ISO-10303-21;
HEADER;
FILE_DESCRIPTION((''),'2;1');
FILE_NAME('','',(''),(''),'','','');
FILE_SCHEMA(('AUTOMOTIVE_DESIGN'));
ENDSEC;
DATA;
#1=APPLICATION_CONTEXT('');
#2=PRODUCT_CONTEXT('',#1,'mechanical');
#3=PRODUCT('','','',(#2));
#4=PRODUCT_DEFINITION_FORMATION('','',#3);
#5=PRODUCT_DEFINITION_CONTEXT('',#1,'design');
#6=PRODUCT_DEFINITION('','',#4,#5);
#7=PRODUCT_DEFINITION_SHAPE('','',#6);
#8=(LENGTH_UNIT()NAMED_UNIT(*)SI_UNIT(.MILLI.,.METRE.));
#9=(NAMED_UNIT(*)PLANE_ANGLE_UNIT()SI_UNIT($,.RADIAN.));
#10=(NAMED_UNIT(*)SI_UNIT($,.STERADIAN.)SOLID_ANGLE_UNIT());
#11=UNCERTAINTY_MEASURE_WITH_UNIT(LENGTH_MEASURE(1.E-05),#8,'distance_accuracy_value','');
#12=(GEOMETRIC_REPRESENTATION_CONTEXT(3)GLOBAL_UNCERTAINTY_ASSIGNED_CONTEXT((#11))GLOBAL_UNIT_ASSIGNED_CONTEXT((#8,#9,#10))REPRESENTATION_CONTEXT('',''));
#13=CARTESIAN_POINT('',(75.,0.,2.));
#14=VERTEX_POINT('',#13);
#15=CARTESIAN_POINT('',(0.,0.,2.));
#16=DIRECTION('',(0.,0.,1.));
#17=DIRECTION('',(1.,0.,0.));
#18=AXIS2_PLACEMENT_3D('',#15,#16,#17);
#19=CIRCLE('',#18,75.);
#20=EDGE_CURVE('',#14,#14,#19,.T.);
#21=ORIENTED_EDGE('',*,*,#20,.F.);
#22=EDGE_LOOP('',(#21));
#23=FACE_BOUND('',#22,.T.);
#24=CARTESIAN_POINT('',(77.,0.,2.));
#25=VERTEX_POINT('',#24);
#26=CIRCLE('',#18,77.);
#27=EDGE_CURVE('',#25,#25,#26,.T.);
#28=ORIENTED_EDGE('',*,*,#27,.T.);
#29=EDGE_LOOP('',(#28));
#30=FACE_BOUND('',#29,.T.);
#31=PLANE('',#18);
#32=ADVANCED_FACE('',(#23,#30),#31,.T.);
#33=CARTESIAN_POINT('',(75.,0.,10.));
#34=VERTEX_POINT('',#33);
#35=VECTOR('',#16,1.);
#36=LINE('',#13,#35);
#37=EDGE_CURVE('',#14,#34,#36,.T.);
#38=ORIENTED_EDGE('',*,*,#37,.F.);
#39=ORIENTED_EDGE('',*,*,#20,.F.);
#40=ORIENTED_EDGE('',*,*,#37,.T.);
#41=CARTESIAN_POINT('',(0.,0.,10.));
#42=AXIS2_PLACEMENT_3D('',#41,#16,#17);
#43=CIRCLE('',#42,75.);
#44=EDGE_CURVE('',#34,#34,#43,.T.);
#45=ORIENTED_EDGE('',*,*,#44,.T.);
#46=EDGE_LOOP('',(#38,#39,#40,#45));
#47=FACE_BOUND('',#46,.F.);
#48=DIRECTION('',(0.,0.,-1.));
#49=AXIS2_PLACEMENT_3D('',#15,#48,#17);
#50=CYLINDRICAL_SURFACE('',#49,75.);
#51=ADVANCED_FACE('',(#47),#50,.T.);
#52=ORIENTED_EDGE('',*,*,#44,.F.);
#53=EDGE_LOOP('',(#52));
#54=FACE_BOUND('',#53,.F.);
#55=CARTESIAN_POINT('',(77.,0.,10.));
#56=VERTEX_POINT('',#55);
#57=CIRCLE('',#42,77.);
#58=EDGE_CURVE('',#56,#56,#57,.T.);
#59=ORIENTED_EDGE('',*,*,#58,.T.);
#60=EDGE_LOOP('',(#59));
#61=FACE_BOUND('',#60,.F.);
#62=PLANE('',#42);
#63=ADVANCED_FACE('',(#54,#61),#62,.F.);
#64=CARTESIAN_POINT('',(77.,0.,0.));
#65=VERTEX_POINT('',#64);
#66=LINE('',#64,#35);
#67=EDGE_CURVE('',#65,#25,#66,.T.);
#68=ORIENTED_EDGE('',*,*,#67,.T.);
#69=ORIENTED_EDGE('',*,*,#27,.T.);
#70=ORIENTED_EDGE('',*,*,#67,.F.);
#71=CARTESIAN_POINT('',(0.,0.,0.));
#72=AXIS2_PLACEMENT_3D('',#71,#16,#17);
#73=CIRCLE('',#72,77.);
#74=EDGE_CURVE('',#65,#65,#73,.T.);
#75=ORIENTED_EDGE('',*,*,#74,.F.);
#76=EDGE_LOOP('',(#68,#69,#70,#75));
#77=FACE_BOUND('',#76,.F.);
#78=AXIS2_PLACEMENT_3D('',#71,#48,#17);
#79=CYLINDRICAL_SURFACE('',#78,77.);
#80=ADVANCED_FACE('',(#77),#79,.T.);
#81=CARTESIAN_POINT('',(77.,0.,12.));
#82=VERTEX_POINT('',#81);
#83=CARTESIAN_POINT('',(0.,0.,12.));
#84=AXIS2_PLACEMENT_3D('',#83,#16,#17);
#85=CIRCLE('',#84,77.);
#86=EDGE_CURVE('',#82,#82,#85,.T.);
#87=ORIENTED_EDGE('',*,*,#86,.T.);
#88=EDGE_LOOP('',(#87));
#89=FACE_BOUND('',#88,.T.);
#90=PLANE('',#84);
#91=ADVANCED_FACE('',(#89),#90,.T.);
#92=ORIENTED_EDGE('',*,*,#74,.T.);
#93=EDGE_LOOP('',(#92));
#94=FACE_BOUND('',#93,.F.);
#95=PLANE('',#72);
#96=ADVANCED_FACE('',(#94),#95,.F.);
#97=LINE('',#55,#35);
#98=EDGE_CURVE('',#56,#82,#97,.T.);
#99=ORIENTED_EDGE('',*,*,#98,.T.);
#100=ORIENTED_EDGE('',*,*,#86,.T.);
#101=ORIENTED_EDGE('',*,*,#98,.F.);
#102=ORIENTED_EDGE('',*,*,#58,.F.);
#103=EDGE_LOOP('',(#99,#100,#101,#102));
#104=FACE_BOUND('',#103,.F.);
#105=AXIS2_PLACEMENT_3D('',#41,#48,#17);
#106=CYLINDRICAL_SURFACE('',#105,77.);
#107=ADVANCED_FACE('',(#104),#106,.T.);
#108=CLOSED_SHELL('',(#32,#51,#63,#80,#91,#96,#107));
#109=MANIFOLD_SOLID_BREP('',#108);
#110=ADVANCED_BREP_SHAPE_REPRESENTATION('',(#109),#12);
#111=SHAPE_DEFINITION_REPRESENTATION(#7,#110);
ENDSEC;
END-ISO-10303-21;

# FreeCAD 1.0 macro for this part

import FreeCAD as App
import Part
import Sketcher

V = App.Vector

doc = App.newDocument("Part")
body = doc.addObject("PartDesign::Body", "Body")

sketch1 = body.newObject("Sketcher::SketchObject", "Sketch")
sketch1.AttachmentSupport = (doc.getObject("XY_Plane"), [""])
sketch1.MapMode = "FlatFace"
sketch1.addGeometry(Part.Circle(V(0, 0, 0), V(0, 0, 1), 77), False)
sketch1.addConstraint([
    Sketcher.Constraint("Coincident", 0, 3, -1, 1),
    Sketcher.Constraint("Diameter", 0, 154.0),
])
pad1 = body.newObject("PartDesign::Pad", "Pad")
pad1.Profile = sketch1
pad1.Length = 2

sketch2 = body.newObject("Sketcher::SketchObject", "Sketch001")
sketch2.AttachmentSupport = (doc.getObject("XY_Plane"), [""])
sketch2.MapMode = "FlatFace"
sketch2.AttachmentOffset = App.Placement(V(0, 0, 2), App.Rotation())
sketch2.addGeometry(Part.Circle(V(0, 0, 0), V(0, 0, 1), 75), False)
sketch2.addConstraint([
    Sketcher.Constraint("Coincident", 0, 3, -1, 1),
    Sketcher.Constraint("Diameter", 0, 150.0),
])
pad2 = body.newObject("PartDesign::Pad", "Pad001")
pad2.Profile = sketch2
pad2.Length = 8

sketch3 = body.newObject("Sketcher::SketchObject", "Sketch002")
sketch3.AttachmentSupport = (doc.getObject("XY_Plane"), [""])
sketch3.MapMode = "FlatFace"
sketch3.AttachmentOffset = App.Placement(V(0, 0, 10), App.Rotation())
sketch3.addGeometry(Part.Circle(V(0, 0, 0), V(0, 0, 1), 77), False)
sketch3.addConstraint([
    Sketcher.Constraint("Coincident", 0, 3, -1, 1),
    Sketcher.Constraint("Diameter", 0, 154.0),
])
pad3 = body.newObject("PartDesign::Pad", "Pad002")
pad3.Profile = sketch3
pad3.Length = 2

doc.recompute()
